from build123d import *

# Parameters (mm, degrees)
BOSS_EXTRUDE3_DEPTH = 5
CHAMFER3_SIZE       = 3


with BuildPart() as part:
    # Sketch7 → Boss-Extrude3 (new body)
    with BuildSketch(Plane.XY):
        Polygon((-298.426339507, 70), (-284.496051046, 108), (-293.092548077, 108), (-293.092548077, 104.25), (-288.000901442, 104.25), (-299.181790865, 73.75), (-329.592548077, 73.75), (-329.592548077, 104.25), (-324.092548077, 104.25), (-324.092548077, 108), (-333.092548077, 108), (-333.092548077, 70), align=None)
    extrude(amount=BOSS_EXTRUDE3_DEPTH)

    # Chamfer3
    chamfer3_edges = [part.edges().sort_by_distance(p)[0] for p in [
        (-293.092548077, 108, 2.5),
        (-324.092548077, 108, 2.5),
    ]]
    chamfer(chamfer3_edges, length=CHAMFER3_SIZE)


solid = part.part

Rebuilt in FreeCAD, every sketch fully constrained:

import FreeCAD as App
import Part
import Sketcher
Q = App.Units.Quantity


def edges_at(feature, points):
    """Names of the edges that pass closest to the given points."""
    edges = feature.Shape.Edges
    near = lambda p: min(range(len(edges)), key=lambda i: edges[i].distToShape(Part.Vertex(*p))[0])
    return sorted({f"Edge{near(p) + 1}" for p in points})


def add_polygon(sketch, points):
    """Adds a closed chain of lines whose ends are joined by coincident constraints."""
    first, n = sketch.GeometryCount, len(points)
    for a, b in zip(points, points[1:] + points[:1]):
        sketch.addGeometry(Part.LineSegment(App.Vector(*a, 0), App.Vector(*b, 0)), False)
    for i in range(n):
        sketch.addConstraint(Sketcher.Constraint("Coincident", first + i, 2, first + (i + 1) % n, 1))

doc = App.newDocument("Part")
body = doc.addObject("PartDesign::Body", "Body")

# Sketch on XY plane
sketch1 = doc.addObject("Sketcher::SketchObject", "Sketch")
body.addObject(sketch1)
sketch1.AttachmentSupport = (doc.XY_Plane, [""])
sketch1.MapMode = "FlatFace"
add_polygon(sketch1, [(-298.42634, 70), (-284.496051, 108), (-293.092548, 108), (-293.092548, 104.25), (-288.000901, 104.25), (-299.181791, 73.75), (-329.592548, 73.75), (-329.592548, 104.25), (-324.092548, 104.25), (-324.092548, 108), (-333.092548, 108), (-333.092548, 70)])  # lines 0-11
sketch1.addConstraint([
    Sketcher.Constraint("Horizontal", 1),
    Sketcher.Constraint("Vertical", 2),
    Sketcher.Constraint("Horizontal", 3),
    Sketcher.Constraint("Horizontal", 5),
    Sketcher.Constraint("Vertical", 6),
    Sketcher.Constraint("Horizontal", 7),
    Sketcher.Constraint("Vertical", 8),
    Sketcher.Constraint("Horizontal", 9),
    Sketcher.Constraint("Vertical", 10),
    Sketcher.Constraint("Horizontal", 11),
    Sketcher.Constraint("Parallel", 0, 4),
    Sketcher.Constraint("Horizontal", 3, 2, 6, 2),
    Sketcher.Constraint("Horizontal", 1, 2, 8, 2),
    Sketcher.Constraint("DistanceX", 9, 2, 9, 1, Q("9 mm")),
    Sketcher.Constraint("DistanceY", 10, 2, 10, 1, Q("38 mm")),
    Sketcher.Constraint("DistanceX", 7, 1, 7, 2, Q("5.5 mm")),
    Sketcher.Constraint("DistanceY", 6, 1, 6, 2, Q("30.5 mm")),
    Sketcher.Constraint("DistanceY", -1, 1, 0, 2, Q("108 mm")),
    Sketcher.Constraint("DistanceX", 7, 2, 2, 2, Q("31 mm")),
    Sketcher.Constraint("DistanceY", 2, 2, 2, 1, Q("3.75 mm")),
    Sketcher.Constraint("Distance", 4, Q("32.484801 mm")),
    Sketcher.Constraint("DistanceX", 11, 1, 11, 2, Q("34.666209 mm")),
    Sketcher.Constraint("DistanceX", 3, 2, -1, 1, Q("288.000901 mm")),
    Sketcher.Constraint("DistanceX", 3, 1, 3, 2, Q("5.091647 mm")),
])
pad1 = doc.addObject("PartDesign::Pad", "Pad")
body.addObject(pad1)
pad1.Profile = sketch1
pad1.Length = 5
doc.recompute()

chamfer = doc.addObject("PartDesign::Chamfer", "Chamfer")
body.addObject(chamfer)
chamfer.Base = (pad1, edges_at(pad1, [(-293.093, 108, 2.5), (-324.093, 108, 2.5)]))
chamfer.Size = 3

doc.recompute()
